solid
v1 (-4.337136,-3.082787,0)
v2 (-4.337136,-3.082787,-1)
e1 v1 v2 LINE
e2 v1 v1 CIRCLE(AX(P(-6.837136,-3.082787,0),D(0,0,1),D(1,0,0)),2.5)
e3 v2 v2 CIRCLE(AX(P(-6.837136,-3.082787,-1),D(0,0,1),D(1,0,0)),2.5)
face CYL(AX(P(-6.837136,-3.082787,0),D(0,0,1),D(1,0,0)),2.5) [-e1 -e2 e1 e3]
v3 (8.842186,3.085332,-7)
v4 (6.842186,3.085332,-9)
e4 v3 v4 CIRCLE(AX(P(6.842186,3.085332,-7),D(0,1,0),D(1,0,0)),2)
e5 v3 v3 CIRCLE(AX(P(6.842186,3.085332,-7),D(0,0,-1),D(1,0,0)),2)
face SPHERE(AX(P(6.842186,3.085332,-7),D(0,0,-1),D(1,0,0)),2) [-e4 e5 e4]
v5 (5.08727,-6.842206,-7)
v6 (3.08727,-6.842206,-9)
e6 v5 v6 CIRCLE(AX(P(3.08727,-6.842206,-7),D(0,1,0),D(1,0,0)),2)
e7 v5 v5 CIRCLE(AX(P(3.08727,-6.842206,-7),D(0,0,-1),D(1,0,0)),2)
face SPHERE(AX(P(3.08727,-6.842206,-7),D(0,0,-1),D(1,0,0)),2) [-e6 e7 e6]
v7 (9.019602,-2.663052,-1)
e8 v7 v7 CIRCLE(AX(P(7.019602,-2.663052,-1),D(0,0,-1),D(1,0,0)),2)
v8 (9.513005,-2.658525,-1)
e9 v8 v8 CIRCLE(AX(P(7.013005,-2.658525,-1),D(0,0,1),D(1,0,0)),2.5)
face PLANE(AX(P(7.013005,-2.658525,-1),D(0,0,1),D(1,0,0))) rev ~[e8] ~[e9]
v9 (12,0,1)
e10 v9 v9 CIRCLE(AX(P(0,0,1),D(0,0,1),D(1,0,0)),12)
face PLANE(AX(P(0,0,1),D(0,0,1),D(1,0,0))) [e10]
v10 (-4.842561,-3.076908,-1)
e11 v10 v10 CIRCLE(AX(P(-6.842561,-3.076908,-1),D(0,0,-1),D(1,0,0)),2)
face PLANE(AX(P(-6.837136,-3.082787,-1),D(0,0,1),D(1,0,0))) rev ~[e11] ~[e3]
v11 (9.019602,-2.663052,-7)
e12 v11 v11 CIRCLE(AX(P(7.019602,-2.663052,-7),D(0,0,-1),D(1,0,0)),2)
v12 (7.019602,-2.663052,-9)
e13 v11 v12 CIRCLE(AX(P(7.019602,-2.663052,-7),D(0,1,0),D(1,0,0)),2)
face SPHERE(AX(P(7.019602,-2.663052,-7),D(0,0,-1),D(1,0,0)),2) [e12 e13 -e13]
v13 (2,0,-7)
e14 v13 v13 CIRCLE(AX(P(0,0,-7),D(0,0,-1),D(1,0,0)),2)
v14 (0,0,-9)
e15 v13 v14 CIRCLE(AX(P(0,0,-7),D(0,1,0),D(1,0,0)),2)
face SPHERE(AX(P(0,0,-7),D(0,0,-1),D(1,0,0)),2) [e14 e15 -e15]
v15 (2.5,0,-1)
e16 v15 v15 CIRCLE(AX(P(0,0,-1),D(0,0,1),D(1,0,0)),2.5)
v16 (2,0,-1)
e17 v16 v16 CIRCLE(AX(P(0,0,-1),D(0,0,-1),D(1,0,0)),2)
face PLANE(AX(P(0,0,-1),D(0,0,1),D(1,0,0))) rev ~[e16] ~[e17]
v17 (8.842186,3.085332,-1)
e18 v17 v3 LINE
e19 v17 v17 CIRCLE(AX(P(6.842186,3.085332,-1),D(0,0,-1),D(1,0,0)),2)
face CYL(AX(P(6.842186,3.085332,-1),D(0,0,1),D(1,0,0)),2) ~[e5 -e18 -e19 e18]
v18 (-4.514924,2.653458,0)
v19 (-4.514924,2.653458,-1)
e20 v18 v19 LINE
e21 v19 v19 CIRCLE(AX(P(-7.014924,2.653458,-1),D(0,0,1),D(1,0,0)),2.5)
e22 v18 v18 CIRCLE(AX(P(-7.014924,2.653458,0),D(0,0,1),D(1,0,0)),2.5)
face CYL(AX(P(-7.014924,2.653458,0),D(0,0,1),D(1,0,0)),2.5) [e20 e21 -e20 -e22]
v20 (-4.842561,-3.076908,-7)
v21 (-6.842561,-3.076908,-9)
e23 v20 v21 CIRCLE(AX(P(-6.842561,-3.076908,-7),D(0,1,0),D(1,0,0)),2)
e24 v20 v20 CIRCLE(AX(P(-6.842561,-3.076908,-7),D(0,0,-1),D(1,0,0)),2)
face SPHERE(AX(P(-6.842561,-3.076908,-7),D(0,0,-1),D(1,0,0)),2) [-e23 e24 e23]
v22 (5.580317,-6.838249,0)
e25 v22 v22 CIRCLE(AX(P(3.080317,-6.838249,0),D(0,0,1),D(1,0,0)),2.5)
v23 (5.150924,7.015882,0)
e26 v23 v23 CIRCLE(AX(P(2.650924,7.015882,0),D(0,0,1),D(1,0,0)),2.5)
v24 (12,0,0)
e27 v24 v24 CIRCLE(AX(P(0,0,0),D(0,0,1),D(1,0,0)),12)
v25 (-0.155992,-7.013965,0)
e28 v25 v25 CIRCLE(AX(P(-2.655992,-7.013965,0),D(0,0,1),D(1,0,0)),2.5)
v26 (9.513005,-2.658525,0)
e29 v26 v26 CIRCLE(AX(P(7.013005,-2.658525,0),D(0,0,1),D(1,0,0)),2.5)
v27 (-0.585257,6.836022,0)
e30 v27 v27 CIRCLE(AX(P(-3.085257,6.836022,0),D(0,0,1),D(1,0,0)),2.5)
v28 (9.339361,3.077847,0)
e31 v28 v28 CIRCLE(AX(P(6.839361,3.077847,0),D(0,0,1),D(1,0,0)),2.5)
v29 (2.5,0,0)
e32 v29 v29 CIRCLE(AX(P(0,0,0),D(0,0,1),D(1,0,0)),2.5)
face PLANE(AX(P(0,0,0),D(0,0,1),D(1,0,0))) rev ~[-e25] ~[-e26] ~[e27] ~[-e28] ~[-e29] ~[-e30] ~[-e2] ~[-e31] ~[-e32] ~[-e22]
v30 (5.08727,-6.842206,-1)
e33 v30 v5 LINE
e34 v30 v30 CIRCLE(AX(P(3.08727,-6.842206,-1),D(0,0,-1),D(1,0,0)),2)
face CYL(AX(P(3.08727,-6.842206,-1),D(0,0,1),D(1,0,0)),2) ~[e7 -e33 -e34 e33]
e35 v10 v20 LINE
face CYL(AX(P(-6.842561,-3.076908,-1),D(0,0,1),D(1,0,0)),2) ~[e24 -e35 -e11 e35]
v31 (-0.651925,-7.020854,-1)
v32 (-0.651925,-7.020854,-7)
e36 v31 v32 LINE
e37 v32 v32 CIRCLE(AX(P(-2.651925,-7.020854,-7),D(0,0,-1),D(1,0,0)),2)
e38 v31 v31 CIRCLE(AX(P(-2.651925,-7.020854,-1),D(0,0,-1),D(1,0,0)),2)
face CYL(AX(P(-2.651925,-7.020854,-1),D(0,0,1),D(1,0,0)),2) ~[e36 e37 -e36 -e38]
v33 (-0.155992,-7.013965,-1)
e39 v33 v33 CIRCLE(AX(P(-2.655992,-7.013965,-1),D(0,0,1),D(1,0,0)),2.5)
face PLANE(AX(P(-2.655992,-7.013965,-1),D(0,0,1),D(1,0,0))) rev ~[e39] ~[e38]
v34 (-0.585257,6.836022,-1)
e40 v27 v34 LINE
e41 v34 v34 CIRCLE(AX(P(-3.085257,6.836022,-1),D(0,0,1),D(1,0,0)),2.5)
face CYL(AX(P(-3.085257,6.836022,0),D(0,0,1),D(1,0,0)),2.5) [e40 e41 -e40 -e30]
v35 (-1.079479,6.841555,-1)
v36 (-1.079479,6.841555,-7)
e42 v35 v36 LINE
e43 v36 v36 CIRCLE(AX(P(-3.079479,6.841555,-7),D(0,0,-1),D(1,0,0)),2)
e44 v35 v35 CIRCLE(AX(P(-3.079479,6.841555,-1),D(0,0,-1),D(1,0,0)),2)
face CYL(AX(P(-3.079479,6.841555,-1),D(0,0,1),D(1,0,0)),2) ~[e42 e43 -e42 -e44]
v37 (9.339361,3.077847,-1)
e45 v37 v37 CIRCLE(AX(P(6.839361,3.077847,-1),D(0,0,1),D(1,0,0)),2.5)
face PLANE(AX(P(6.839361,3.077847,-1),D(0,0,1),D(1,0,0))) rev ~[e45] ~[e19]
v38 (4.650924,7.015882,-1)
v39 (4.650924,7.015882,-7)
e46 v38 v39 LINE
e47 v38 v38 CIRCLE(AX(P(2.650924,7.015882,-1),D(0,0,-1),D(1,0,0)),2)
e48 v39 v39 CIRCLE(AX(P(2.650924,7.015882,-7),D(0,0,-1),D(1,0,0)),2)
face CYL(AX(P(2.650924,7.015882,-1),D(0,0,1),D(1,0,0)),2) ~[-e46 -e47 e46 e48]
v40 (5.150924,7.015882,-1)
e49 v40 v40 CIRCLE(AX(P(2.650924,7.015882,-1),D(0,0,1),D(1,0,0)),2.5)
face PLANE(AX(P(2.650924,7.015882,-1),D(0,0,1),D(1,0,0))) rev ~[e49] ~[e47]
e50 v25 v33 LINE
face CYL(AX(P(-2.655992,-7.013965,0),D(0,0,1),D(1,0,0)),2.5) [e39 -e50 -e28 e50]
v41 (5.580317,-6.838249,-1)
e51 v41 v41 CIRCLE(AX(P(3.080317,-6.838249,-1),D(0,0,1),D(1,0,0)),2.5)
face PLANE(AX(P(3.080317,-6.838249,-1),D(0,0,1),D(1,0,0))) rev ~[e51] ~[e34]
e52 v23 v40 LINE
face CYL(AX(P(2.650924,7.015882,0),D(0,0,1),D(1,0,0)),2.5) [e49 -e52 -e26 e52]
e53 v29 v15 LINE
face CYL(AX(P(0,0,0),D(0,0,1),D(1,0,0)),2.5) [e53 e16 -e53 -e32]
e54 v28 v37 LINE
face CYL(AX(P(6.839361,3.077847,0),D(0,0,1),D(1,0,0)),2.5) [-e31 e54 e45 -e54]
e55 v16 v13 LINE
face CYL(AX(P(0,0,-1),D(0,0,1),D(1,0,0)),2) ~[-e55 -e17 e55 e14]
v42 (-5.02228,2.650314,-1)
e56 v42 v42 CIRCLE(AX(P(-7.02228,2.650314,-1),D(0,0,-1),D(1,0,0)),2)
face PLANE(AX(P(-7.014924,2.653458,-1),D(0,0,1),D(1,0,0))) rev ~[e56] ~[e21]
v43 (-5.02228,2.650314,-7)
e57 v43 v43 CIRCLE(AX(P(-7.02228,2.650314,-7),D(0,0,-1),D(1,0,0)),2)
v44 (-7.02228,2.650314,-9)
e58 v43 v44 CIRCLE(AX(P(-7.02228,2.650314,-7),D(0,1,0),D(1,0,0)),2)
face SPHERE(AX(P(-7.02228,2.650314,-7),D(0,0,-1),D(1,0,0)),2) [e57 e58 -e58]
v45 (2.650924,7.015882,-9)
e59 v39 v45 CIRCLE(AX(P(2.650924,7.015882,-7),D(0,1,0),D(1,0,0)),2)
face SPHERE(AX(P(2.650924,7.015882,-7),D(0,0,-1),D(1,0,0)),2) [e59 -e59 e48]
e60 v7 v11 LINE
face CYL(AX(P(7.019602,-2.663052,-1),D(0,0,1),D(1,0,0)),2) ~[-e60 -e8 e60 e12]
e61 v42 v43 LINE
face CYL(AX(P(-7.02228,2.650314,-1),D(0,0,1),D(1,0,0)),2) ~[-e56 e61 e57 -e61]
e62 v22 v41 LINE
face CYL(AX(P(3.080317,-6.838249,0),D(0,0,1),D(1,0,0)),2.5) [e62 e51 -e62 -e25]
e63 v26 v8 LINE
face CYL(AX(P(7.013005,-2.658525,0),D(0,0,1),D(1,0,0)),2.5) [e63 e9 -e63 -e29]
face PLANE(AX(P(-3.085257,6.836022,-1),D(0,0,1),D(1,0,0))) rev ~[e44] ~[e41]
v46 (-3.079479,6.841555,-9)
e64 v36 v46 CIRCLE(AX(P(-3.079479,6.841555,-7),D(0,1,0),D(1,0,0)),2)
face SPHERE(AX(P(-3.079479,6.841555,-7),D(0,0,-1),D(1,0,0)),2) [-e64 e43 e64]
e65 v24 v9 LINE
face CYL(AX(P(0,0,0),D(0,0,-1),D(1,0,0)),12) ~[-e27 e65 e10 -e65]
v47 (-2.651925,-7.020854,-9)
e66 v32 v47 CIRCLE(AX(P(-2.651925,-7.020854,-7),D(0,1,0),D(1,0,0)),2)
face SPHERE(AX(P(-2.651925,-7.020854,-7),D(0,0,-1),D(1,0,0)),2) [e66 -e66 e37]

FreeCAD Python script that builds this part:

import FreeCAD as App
import Part
import Sketcher
from FreeCAD import Vector


def edges_at(feature, points):
    """Names of the edges that pass closest to the given points."""
    edges = feature.Shape.Edges
    near = lambda p: min(range(len(edges)), key=lambda i: edges[i].distToShape(Part.Vertex(*p))[0])
    return sorted({f"Edge{near(p) + 1}" for p in points})

doc = App.newDocument("Part")
params = doc.addObject("Spreadsheet::Sheet", "Params")
for row, (alias, value) in enumerate([
    ("sketch1_diameter", "24 mm"),
    ("pad1_length", "1 mm"),
    ("sketch2_diameter", "5 mm"),
    ("pad2_length", "1 mm"),
    ("sketch3_diameter", "4 mm"),
    ("pad3_length", "8 mm"),
    ("fillet_radius", "2 mm"),
], start=1):
    params.set(f"A{row}", alias)
    params.set(f"B{row}", "=" + value)
    params.setAlias(f"B{row}", alias)

body = doc.addObject("PartDesign::Body", "Body")

sketch1 = doc.addObject("Sketcher::SketchObject", "Sketch")
body.addObject(sketch1)
sketch1.AttachmentSupport = (doc.XY_Plane, [""])
sketch1.MapMode = "FlatFace"
sketch1.addGeometry(Part.Circle(Vector(0, 0, 0), Vector(0, 0, 1), 12), False)
sketch1.addConstraint([
    Sketcher.Constraint("Coincident", 0, 3, -1, 1),
    Sketcher.Constraint("Diameter", 0, 24.0),
])
sketch1.setExpression("Constraints[1]", "Params.sketch1_diameter")
pad1 = doc.addObject("PartDesign::Pad", "Pad")
body.addObject(pad1)
pad1.Profile = sketch1
pad1.setExpression("Length", "Params.pad1_length")

sketch2 = doc.addObject("Sketcher::SketchObject", "Sketch001")
body.addObject(sketch2)
sketch2.AttachmentSupport = (doc.XY_Plane, [""])
sketch2.MapMode = "FlatFace"
sketch2.addGeometry([
    Part.Circle(Vector(-7, 2.7, 0), Vector(0, 0, 1), 2.5),
    Part.Circle(Vector(3.1, -6.8, 0), Vector(0, 0, 1), 2.5),
    Part.Circle(Vector(-3.1, 6.8, 0), Vector(0, 0, 1), 2.5),
    Part.Circle(Vector(-6.8, -3.1, 0), Vector(0, 0, 1), 2.5),
    Part.Circle(Vector(0, 0, 0), Vector(0, 0, 1), 2.5),
    Part.Circle(Vector(6.8, 3.1, 0), Vector(0, 0, 1), 2.5),
    Part.Circle(Vector(7, -2.7, 0), Vector(0, 0, 1), 2.5),
    Part.Circle(Vector(-2.7, -7, 0), Vector(0, 0, 1), 2.5),
    Part.Circle(Vector(2.7, 7, 0), Vector(0, 0, 1), 2.5),
], False)
sketch2.addConstraint([
    Sketcher.Constraint("Coincident", 4, 3, -1, 1),
    Sketcher.Constraint("Equal", 0, 1),
    Sketcher.Constraint("Equal", 1, 2),
    Sketcher.Constraint("Equal", 2, 3),
    Sketcher.Constraint("Equal", 3, 4),
    Sketcher.Constraint("Equal", 4, 5),
    Sketcher.Constraint("Equal", 5, 6),
    Sketcher.Constraint("Equal", 6, 7),
    Sketcher.Constraint("Equal", 7, 8),
    Sketcher.Constraint("Diameter", 0, 5.0),
    Sketcher.Constraint("DistanceY", -1, 1, 0, 3, 2.653458),
    Sketcher.Constraint("DistanceY", 1, 3, -1, 1, 6.838249),
    Sketcher.Constraint("DistanceY", -1, 1, 2, 3, 6.836022),
    Sketcher.Constraint("DistanceX", -1, 1, 5, 3, 6.839361),
    Sketcher.Constraint("DistanceX", 7, 3, -1, 1, 2.655992),
    Sketcher.Constraint("DistanceX", 0, 3, 1, 3, 10.095241),
    Sketcher.Constraint("DistanceX", 3, 3, 2, 3, 3.751879),
    Sketcher.Constraint("DistanceY", 3, 3, 2, 3, 9.918809),
    Sketcher.Constraint("DistanceY", 0, 3, 5, 3, 0.424389),
    Sketcher.Constraint("DistanceX", 3, 3, 6, 3, 13.850141),
    Sketcher.Constraint("DistanceX", 7, 3, 1, 3, 5.736309),
    Sketcher.Constraint("DistanceY", 7, 3, 6, 3, 4.35544),
    Sketcher.Constraint("DistanceX", 2, 3, 8, 3, 5.736181),
    Sketcher.Constraint("DistanceY", 2, 3, 8, 3, 0.17986),
    Sketcher.Constraint("DistanceX", 2, 3, -1, 1, 3.085257),
    Sketcher.Constraint("DistanceY", 6, 3, -1, 1, 2.658525),
])
sketch2.setExpression("Constraints[9]", "Params.sketch2_diameter")
pad2 = doc.addObject("PartDesign::Pad", "Pad001")
body.addObject(pad2)
pad2.Profile = sketch2
pad2.setExpression("Length", "Params.pad2_length")
pad2.Reversed = True

sketch3 = doc.addObject("Sketcher::SketchObject", "Sketch002")
body.addObject(sketch3)
sketch3.AttachmentSupport = (doc.XY_Plane, [""])
sketch3.MapMode = "FlatFace"
sketch3.AttachmentOffset = App.Placement(Vector(0, 0, -1), App.Rotation())
sketch3.addGeometry([
    Part.Circle(Vector(-3.1, 6.8, 0), Vector(0, 0, 1), 2),
    Part.Circle(Vector(6.8, 3.1, 0), Vector(0, 0, 1), 2),
    Part.Circle(Vector(0, 0, 0), Vector(0, 0, 1), 2),
    Part.Circle(Vector(2.7, 7, 0), Vector(0, 0, 1), 2),
    Part.Circle(Vector(-2.7, -7, 0), Vector(0, 0, 1), 2),
    Part.Circle(Vector(-7, 2.7, 0), Vector(0, 0, 1), 2),
    Part.Circle(Vector(3.1, -6.8, 0), Vector(0, 0, 1), 2),
    Part.Circle(Vector(7, -2.7, 0), Vector(0, 0, 1), 2),
    Part.Circle(Vector(-6.8, -3.1, 0), Vector(0, 0, 1), 2),
], False)
sketch3.addConstraint([
    Sketcher.Constraint("Coincident", 2, 3, -1, 1),
    Sketcher.Constraint("Equal", 0, 1),
    Sketcher.Constraint("Equal", 1, 2),
    Sketcher.Constraint("Equal", 2, 3),
    Sketcher.Constraint("Equal", 3, 4),
    Sketcher.Constraint("Equal", 4, 5),
    Sketcher.Constraint("Equal", 5, 6),
    Sketcher.Constraint("Equal", 6, 7),
    Sketcher.Constraint("Equal", 7, 8),
    Sketcher.Constraint("Diameter", 0, 4.0),
    Sketcher.Constraint("DistanceX", 5, 3, 0, 3, 3.942801),
    Sketcher.Constraint("DistanceY", 4, 3, 7, 3, 4.357802),
    Sketcher.Constraint("DistanceY", 6, 3, 8, 3, 3.765298),
    Sketcher.Constraint("DistanceX", 0, 3, -1, 1, 3.079479),
    Sketcher.Constraint("DistanceX", -1, 1, 6, 3, 3.08727),
    Sketcher.Constraint("DistanceY", 7, 3, -1, 1, 2.663052),
    Sketcher.Constraint("DistanceX", 8, 3, -1, 1, 6.842561),
    Sketcher.Constraint("DistanceY", 8, 3, -1, 1, 3.076908),
    Sketcher.Constraint("DistanceY", 1, 3, 3, 3, 3.93055),
    Sketcher.Constraint("DistanceX", 4, 3, 1, 3, 9.494111),
    Sketcher.Constraint("DistanceY", 4, 3, 0, 3, 13.862409),
    Sketcher.Constraint("DistanceX", 4, 3, 3, 3, 5.302849),
    Sketcher.Constraint("DistanceY", 5, 3, 0, 3, 4.191241),
    Sketcher.Constraint("DistanceY", 5, 3, 3, 3, 4.365568),
    Sketcher.Constraint("DistanceX", 6, 3, 7, 3, 3.932332),
    Sketcher.Constraint("DistanceX", -1, 1, 1, 3, 6.842186),
])
sketch3.setExpression("Constraints[9]", "Params.sketch3_diameter")
pad3 = doc.addObject("PartDesign::Pad", "Pad002")
body.addObject(pad3)
pad3.Profile = sketch3
pad3.setExpression("Length", "Params.pad3_length")
pad3.Reversed = True
doc.recompute()

fillet = doc.addObject("PartDesign::Fillet", "Fillet")
body.addObject(fillet)
fillet.Base = (pad3, edges_at(pad3, [
    (-2, 0, -9),
    (-4.652, -7.021, -9),
    (0.651, 7.016, -9),
    (5.02, -2.663, -9),
    (-5.079, 6.842, -9),
    (4.842, 3.085, -9),
    (-9.022, 2.65, -9),
    (1.087, -6.842, -9),
    (-8.843, -3.077, -9),
]))
fillet.setExpression("Radius", "Params.fillet_radius")

doc.recompute()
